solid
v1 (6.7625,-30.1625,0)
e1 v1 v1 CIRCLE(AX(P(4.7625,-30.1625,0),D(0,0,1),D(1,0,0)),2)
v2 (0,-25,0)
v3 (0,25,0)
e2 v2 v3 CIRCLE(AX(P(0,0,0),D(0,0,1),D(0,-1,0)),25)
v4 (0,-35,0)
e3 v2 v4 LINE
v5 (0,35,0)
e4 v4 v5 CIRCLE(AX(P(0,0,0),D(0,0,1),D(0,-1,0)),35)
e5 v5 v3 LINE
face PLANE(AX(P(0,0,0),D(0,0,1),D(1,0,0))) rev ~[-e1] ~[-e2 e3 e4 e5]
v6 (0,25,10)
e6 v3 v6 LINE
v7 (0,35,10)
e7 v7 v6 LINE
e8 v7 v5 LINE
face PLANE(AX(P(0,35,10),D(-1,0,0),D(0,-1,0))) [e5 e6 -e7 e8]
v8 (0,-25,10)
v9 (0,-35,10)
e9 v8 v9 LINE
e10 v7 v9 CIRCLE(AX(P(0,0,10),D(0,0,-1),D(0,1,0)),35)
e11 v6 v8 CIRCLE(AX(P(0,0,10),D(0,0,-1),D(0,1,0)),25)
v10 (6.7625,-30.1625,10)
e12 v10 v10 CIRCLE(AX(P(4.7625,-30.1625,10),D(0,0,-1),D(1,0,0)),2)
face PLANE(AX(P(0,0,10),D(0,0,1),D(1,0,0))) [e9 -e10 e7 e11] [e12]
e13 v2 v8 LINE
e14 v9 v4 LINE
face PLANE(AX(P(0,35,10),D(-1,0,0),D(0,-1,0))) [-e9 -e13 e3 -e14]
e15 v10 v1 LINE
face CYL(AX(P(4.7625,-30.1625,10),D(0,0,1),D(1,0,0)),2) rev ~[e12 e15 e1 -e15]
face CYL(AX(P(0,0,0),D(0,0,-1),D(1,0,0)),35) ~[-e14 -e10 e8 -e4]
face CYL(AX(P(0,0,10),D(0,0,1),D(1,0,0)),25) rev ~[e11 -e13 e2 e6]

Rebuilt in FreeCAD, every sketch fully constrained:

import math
import FreeCAD as App
import Part
import Sketcher

V = App.Vector
Q = App.Units.Quantity

doc = App.newDocument("Part")
body = doc.addObject("PartDesign::Body", "Body")

# Sketch on XY plane
sketch1 = body.newObject("Sketcher::SketchObject", "Sketch")
sketch1.AttachmentSupport = (doc.getObject("XY_Plane"), [""])
sketch1.MapMode = "FlatFace"
sketch1.addGeometry(Part.Circle(V(0, 0, 0), V(0, 0, 1), 35), False)
sketch1.addConstraint([
    Sketcher.Constraint("Coincident", 0, 3, -1, 1),
    Sketcher.Constraint("Diameter", 0, Q("70 mm")),
])
pad1 = body.newObject("PartDesign::Pad", "Pad")
pad1.Profile = sketch1
pad1.Length = 10

# Sketch on XY plane
sketch2 = body.newObject("Sketcher::SketchObject", "Sketch001")
sketch2.AttachmentSupport = (doc.getObject("XY_Plane"), [""])
sketch2.MapMode = "FlatFace"
sketch2.AttachmentOffset = App.Placement(V(0, 0, 10), App.Rotation())
sketch2.addGeometry([
    Part.Circle(V(0, 0, 0), V(0, 0, 1), 25),
    Part.Circle(V(4.8, -30.2, 0), V(0, 0, 1), 2),
], False)
sketch2.addConstraint([
    Sketcher.Constraint("Coincident", 0, 3, -1, 1),
    Sketcher.Constraint("Diameter", 0, Q("50 mm")),
    Sketcher.Constraint("Diameter", 1, Q("4 mm")),
    Sketcher.Constraint("DistanceX", -1, 1, 1, 3, Q("4.7625 mm")),
    Sketcher.Constraint("DistanceY", 1, 3, -1, 1, Q("30.1625 mm")),
])
pocket1 = body.newObject("PartDesign::Pocket", "Pocket")
pocket1.Profile = sketch2
pocket1.Length = 10

# Sketch on XY plane
sketch3 = body.newObject("Sketcher::SketchObject", "Sketch002")
sketch3.AttachmentSupport = (doc.getObject("XY_Plane"), [""])
sketch3.MapMode = "FlatFace"
sketch3.AttachmentOffset = App.Placement(V(0, 0, 10), App.Rotation())
sketch3.addGeometry([
    Part.LineSegment(V(0, -35, 0), V(0, 35, 0)),
    Part.ArcOfCircle(Part.Circle(V(0, 0, 0), V(0, 0, 1), 35), math.radians(90), math.radians(270)),
], False)
sketch3.addConstraint([
    Sketcher.Constraint("Coincident", 0, 1, 1, 2),
    Sketcher.Constraint("Coincident", 1, 1, 0, 2),
    Sketcher.Constraint("Vertical", 0),
    Sketcher.Constraint("Coincident", 1, 3, -1, 1),
    Sketcher.Constraint("PointOnObject", 0, 1, -2),
    Sketcher.Constraint("Radius", 1, Q("35 mm")),
])
pocket2 = body.newObject("PartDesign::Pocket", "Pocket001")
pocket2.Profile = sketch3
pocket2.Length = 10

doc.recompute()
